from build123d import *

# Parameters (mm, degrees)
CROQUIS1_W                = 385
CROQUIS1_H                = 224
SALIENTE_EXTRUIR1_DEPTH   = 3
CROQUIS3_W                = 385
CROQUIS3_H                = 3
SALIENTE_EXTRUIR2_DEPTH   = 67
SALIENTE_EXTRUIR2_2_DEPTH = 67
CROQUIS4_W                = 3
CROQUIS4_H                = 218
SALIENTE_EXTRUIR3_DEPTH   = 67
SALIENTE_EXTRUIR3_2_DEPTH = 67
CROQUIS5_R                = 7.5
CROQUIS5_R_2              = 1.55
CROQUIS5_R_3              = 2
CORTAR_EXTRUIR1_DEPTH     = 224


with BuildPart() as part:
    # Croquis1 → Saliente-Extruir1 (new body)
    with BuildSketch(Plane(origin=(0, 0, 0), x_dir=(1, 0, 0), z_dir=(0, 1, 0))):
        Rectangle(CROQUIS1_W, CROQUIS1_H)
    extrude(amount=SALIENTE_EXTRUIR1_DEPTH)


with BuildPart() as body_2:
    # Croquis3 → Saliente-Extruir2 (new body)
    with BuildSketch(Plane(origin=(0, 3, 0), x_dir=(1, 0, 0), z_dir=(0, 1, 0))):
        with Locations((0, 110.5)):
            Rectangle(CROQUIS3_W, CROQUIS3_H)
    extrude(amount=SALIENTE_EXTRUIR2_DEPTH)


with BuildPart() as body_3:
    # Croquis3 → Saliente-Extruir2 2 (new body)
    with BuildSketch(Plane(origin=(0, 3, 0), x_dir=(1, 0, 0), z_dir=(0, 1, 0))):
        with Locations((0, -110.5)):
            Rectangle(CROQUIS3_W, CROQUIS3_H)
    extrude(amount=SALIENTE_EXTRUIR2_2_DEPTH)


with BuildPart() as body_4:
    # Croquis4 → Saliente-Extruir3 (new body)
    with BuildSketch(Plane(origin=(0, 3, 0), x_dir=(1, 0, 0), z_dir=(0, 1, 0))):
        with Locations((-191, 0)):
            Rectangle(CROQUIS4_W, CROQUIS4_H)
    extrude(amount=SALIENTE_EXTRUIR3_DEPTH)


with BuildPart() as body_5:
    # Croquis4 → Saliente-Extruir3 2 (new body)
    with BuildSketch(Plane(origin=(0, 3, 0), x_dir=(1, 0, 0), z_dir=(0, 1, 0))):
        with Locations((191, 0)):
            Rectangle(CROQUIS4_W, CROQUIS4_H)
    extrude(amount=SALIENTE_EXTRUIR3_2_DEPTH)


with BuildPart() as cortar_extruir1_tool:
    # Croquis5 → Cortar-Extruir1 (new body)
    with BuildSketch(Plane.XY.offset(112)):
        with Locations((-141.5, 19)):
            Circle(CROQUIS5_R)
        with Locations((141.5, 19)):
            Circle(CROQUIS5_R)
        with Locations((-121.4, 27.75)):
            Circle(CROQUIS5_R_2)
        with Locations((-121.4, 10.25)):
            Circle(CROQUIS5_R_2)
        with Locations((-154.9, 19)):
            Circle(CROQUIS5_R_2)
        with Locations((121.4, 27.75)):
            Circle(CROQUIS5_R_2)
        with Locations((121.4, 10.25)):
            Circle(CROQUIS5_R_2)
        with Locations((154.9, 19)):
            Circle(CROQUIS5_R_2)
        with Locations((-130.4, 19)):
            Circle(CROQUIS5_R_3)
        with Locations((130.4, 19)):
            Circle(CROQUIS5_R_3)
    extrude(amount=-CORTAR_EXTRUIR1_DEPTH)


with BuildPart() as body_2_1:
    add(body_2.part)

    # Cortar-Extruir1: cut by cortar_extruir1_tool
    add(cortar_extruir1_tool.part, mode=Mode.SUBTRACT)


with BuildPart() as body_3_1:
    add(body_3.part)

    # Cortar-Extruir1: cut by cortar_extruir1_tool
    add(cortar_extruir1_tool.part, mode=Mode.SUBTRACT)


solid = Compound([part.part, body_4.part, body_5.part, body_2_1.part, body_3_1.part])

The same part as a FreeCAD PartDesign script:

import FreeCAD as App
import Part
import Sketcher
from FreeCAD import Vector
Q = App.Units.Quantity

doc = App.newDocument("Part")
body = doc.addObject("PartDesign::Body", "Body")

# Sketch on XZ plane
sketch1 = body.newObject("Sketcher::SketchObject", "Sketch")
sketch1.AttachmentSupport = (doc.getObject("XZ_Plane"), [""])
sketch1.MapMode = "FlatFace"
sketch1.addGeometry([
    Part.LineSegment(Vector(-192, -112, 0), Vector(-192, 112, 0)),
    Part.LineSegment(Vector(-192, 112, 0), Vector(192, 112, 0)),
    Part.LineSegment(Vector(192, 112, 0), Vector(192, -112, 0)),
    Part.LineSegment(Vector(192, -112, 0), Vector(-192, -112, 0)),
], False)
sketch1.addConstraint([
    Sketcher.Constraint("Coincident", 0, 2, 1, 1),
    Sketcher.Constraint("Coincident", 1, 2, 2, 1),
    Sketcher.Constraint("Coincident", 2, 2, 3, 1),
    Sketcher.Constraint("Coincident", 3, 2, 0, 1),
    Sketcher.Constraint("Vertical", 0),
    Sketcher.Constraint("Horizontal", 1),
    Sketcher.Constraint("Vertical", 2),
    Sketcher.Constraint("Horizontal", 3),
    Sketcher.Constraint("Symmetric", 0, 2, 2, 2, -1, 1),
    Sketcher.Constraint("DistanceX", 1, 1, 1, 2, Q("385 mm")),
    Sketcher.Constraint("DistanceY", 0, 1, 0, 2, Q("224 mm")),
])
pad1 = body.newObject("PartDesign::Pad", "Pad")
pad1.Profile = sketch1
pad1.Length = 3
pad1.Reversed = True
body2 = doc.addObject("PartDesign::Body", "Body001")

# Sketch on XZ plane
sketch2 = body2.newObject("Sketcher::SketchObject", "Sketch001")
sketch2.AttachmentSupport = (doc.getObject("XZ_Plane001"), [""])
sketch2.MapMode = "FlatFace"
sketch2.AttachmentOffset = App.Placement(Vector(0, 0, -3), App.Rotation())
sketch2.addGeometry([
    Part.LineSegment(Vector(-192.5, -112, 0), Vector(-192.5, -109, 0)),
    Part.LineSegment(Vector(-192.5, -109, 0), Vector(192.5, -109, 0)),
    Part.LineSegment(Vector(192.5, -109, 0), Vector(192.5, -112, 0)),
    Part.LineSegment(Vector(192.5, -112, 0), Vector(-192.5, -112, 0)),
], False)
sketch2.addConstraint([
    Sketcher.Constraint("Coincident", 0, 2, 1, 1),
    Sketcher.Constraint("Coincident", 1, 2, 2, 1),
    Sketcher.Constraint("Coincident", 2, 2, 3, 1),
    Sketcher.Constraint("Coincident", 3, 2, 0, 1),
    Sketcher.Constraint("Vertical", 0),
    Sketcher.Constraint("Horizontal", 1),
    Sketcher.Constraint("Vertical", 2),
    Sketcher.Constraint("Horizontal", 3),
    Sketcher.Constraint("DistanceX", 1, 1, 1, 2, Q("385 mm")),
    Sketcher.Constraint("DistanceY", 0, 1, 0, 2, Q("3 mm")),
    Sketcher.Constraint("DistanceY", 0, 2, -1, 1, Q("109 mm")),
    Sketcher.Constraint("DistanceX", 0, 2, -1, 1, Q("192.5 mm")),
])
pad2 = body2.newObject("PartDesign::Pad", "Pad001")
pad2.Profile = sketch2
pad2.Length = 67
pad2.Reversed = True
body3 = doc.addObject("PartDesign::Body", "Body002")

# Sketch on XZ plane
sketch3 = body3.newObject("Sketcher::SketchObject", "Sketch002")
sketch3.AttachmentSupport = (doc.getObject("XZ_Plane002"), [""])
sketch3.MapMode = "FlatFace"
sketch3.AttachmentOffset = App.Placement(Vector(0, 0, -3), App.Rotation())
sketch3.addGeometry([
    Part.LineSegment(Vector(-192.5, 109, 0), Vector(-192.5, 112, 0)),
    Part.LineSegment(Vector(-192.5, 112, 0), Vector(192.5, 112, 0)),
    Part.LineSegment(Vector(192.5, 112, 0), Vector(192.5, 109, 0)),
    Part.LineSegment(Vector(192.5, 109, 0), Vector(-192.5, 109, 0)),
], False)
sketch3.addConstraint([
    Sketcher.Constraint("Coincident", 0, 2, 1, 1),
    Sketcher.Constraint("Coincident", 1, 2, 2, 1),
    Sketcher.Constraint("Coincident", 2, 2, 3, 1),
    Sketcher.Constraint("Coincident", 3, 2, 0, 1),
    Sketcher.Constraint("Vertical", 0),
    Sketcher.Constraint("Horizontal", 1),
    Sketcher.Constraint("Vertical", 2),
    Sketcher.Constraint("Horizontal", 3),
    Sketcher.Constraint("DistanceX", 1, 1, 1, 2, Q("385 mm")),
    Sketcher.Constraint("DistanceY", 0, 1, 0, 2, Q("3 mm")),
    Sketcher.Constraint("DistanceY", -1, 1, 0, 2, Q("112 mm")),
    Sketcher.Constraint("DistanceX", 0, 2, -1, 1, Q("192.5 mm")),
])
pad3 = body3.newObject("PartDesign::Pad", "Pad002")
pad3.Profile = sketch3
pad3.Length = 67
pad3.Reversed = True
body4 = doc.addObject("PartDesign::Body", "Body003")

# Sketch on XZ plane
sketch4 = body4.newObject("Sketcher::SketchObject", "Sketch003")
sketch4.AttachmentSupport = (doc.getObject("XZ_Plane003"), [""])
sketch4.MapMode = "FlatFace"
sketch4.AttachmentOffset = App.Placement(Vector(0, 0, -3), App.Rotation())
sketch4.addGeometry([
    Part.LineSegment(Vector(-192.5, -109, 0), Vector(-192.5, 109, 0)),
    Part.LineSegment(Vector(-192.5, 109, 0), Vector(-189.5, 109, 0)),
    Part.LineSegment(Vector(-189.5, 109, 0), Vector(-189.5, -109, 0)),
    Part.LineSegment(Vector(-189.5, -109, 0), Vector(-192.5, -109, 0)),
], False)
sketch4.addConstraint([
    Sketcher.Constraint("Coincident", 0, 2, 1, 1),
    Sketcher.Constraint("Coincident", 1, 2, 2, 1),
    Sketcher.Constraint("Coincident", 2, 2, 3, 1),
    Sketcher.Constraint("Coincident", 3, 2, 0, 1),
    Sketcher.Constraint("Vertical", 0),
    Sketcher.Constraint("Horizontal", 1),
    Sketcher.Constraint("Vertical", 2),
    Sketcher.Constraint("Horizontal", 3),
    Sketcher.Constraint("DistanceX", 1, 1, 1, 2, Q("3 mm")),
    Sketcher.Constraint("DistanceY", 0, 1, 0, 2, Q("218 mm")),
    Sketcher.Constraint("DistanceY", -1, 1, 0, 2, Q("109 mm")),
    Sketcher.Constraint("DistanceX", 0, 2, -1, 1, Q("192.5 mm")),
])
pad4 = body4.newObject("PartDesign::Pad", "Pad003")
pad4.Profile = sketch4
pad4.Length = 67
pad4.Reversed = True
body5 = doc.addObject("PartDesign::Body", "Body004")

# Sketch on XZ plane
sketch5 = body5.newObject("Sketcher::SketchObject", "Sketch004")
sketch5.AttachmentSupport = (doc.getObject("XZ_Plane004"), [""])
sketch5.MapMode = "FlatFace"
sketch5.AttachmentOffset = App.Placement(Vector(0, 0, -3), App.Rotation())
sketch5.addGeometry([
    Part.LineSegment(Vector(189.5, -109, 0), Vector(189.5, 109, 0)),
    Part.LineSegment(Vector(189.5, 109, 0), Vector(192.5, 109, 0)),
    Part.LineSegment(Vector(192.5, 109, 0), Vector(192.5, -109, 0)),
    Part.LineSegment(Vector(192.5, -109, 0), Vector(189.5, -109, 0)),
], False)
sketch5.addConstraint([
    Sketcher.Constraint("Coincident", 0, 2, 1, 1),
    Sketcher.Constraint("Coincident", 1, 2, 2, 1),
    Sketcher.Constraint("Coincident", 2, 2, 3, 1),
    Sketcher.Constraint("Coincident", 3, 2, 0, 1),
    Sketcher.Constraint("Vertical", 0),
    Sketcher.Constraint("Horizontal", 1),
    Sketcher.Constraint("Vertical", 2),
    Sketcher.Constraint("Horizontal", 3),
    Sketcher.Constraint("DistanceX", 1, 1, 1, 2, Q("3 mm")),
    Sketcher.Constraint("DistanceY", 0, 1, 0, 2, Q("218 mm")),
    Sketcher.Constraint("DistanceY", -1, 1, 0, 2, Q("109 mm")),
    Sketcher.Constraint("DistanceX", -1, 1, 0, 2, Q("189.5 mm")),
])
pad5 = body5.newObject("PartDesign::Pad", "Pad004")
pad5.Profile = sketch5
pad5.Length = 67
pad5.Reversed = True
body6 = doc.addObject("PartDesign::Body", "Body005")
body6.AllowCompound = True

# Sketch on XY plane
sketch6 = body6.newObject("Sketcher::SketchObject", "Sketch005")
sketch6.AttachmentSupport = (doc.getObject("XY_Plane005"), [""])
sketch6.MapMode = "FlatFace"
sketch6.AttachmentOffset = App.Placement(Vector(0, 0, 112), App.Rotation())
sketch6.addGeometry([
    Part.Circle(Vector(-141.5, 19, 0), Vector(0, 0, 1), 7.5),  # 0
    Part.Circle(Vector(141.5, 19, 0), Vector(0, 0, 1), 7.5),  # 1
    Part.Circle(Vector(-121.4, 27.8, 0), Vector(0, 0, 1), 1.6),  # 2
    Part.Circle(Vector(-121.4, 10.2, 0), Vector(0, 0, 1), 1.6),  # 3
    Part.Circle(Vector(-154.9, 19, 0), Vector(0, 0, 1), 1.6),  # 4
    Part.Circle(Vector(121.4, 27.8, 0), Vector(0, 0, 1), 1.6),  # 5
    Part.Circle(Vector(121.4, 10.2, 0), Vector(0, 0, 1), 1.6),  # 6
    Part.Circle(Vector(154.9, 19, 0), Vector(0, 0, 1), 1.6),  # 7
    Part.Circle(Vector(-130.4, 19, 0), Vector(0, 0, 1), 2),  # 8
    Part.Circle(Vector(130.4, 19, 0), Vector(0, 0, 1), 2),  # 9
], False)
sketch6.addConstraint([
    Sketcher.Constraint("Equal", 0, 1),
    Sketcher.Constraint("Equal", 2, 3),
    Sketcher.Constraint("Equal", 3, 4),
    Sketcher.Constraint("Equal", 4, 5),
    Sketcher.Constraint("Equal", 5, 6),
    Sketcher.Constraint("Equal", 6, 7),
    Sketcher.Constraint("Equal", 8, 9),
    Sketcher.Constraint("Symmetric", 0, 3, 1, 3, -2),
    Sketcher.Constraint("Symmetric", 2, 3, 5, 3, -2),
    Sketcher.Constraint("Symmetric", 3, 3, 6, 3, -2),
    Sketcher.Constraint("Symmetric", 4, 3, 7, 3, -2),
    Sketcher.Constraint("Symmetric", 8, 3, 9, 3, -2),
    Sketcher.Constraint("Horizontal", 1, 3, 4, 3),
    Sketcher.Constraint("Horizontal", 7, 3, 8, 3),
    Sketcher.Constraint("Vertical", 2, 3, 3, 3),
    Sketcher.Constraint("Diameter", 0, Q("15 mm")),
    Sketcher.Constraint("Diameter", 8, Q("4 mm")),
    Sketcher.Constraint("Diameter", 2, Q("3.1 mm")),
    Sketcher.Constraint("DistanceY", -1, 1, 0, 3, Q("19 mm")),
    Sketcher.Constraint("DistanceX", 0, 3, 1, 3, Q("283 mm")),
    Sketcher.Constraint("DistanceX", 8, 3, 2, 3, Q("9 mm")),
    Sketcher.Constraint("DistanceX", 2, 3, -1, 1, Q("121.4 mm")),
    Sketcher.Constraint("DistanceX", 4, 3, -1, 1, Q("154.9 mm")),
    Sketcher.Constraint("DistanceY", 3, 3, 2, 3, Q("17.5 mm")),
    Sketcher.Constraint("DistanceY", -1, 1, 2, 3, Q("27.75 mm")),
])
pad6 = body6.newObject("PartDesign::Pad", "Pad005")
pad6.Profile = sketch6
pad6.Length = 224
pad6.Reversed = True
doc.recompute()

body7 = doc.addObject("PartDesign::Body", "Body006")
body7.BaseFeature = body6
boolean = body2.newObject("PartDesign::Boolean", "Boolean")
boolean.Type = "Cut"
boolean.addObjects([body7])
doc.recompute()

boolean2 = body3.newObject("PartDesign::Boolean", "Boolean001")
boolean2.Type = "Cut"
boolean2.addObjects([body6])

doc.recompute()
